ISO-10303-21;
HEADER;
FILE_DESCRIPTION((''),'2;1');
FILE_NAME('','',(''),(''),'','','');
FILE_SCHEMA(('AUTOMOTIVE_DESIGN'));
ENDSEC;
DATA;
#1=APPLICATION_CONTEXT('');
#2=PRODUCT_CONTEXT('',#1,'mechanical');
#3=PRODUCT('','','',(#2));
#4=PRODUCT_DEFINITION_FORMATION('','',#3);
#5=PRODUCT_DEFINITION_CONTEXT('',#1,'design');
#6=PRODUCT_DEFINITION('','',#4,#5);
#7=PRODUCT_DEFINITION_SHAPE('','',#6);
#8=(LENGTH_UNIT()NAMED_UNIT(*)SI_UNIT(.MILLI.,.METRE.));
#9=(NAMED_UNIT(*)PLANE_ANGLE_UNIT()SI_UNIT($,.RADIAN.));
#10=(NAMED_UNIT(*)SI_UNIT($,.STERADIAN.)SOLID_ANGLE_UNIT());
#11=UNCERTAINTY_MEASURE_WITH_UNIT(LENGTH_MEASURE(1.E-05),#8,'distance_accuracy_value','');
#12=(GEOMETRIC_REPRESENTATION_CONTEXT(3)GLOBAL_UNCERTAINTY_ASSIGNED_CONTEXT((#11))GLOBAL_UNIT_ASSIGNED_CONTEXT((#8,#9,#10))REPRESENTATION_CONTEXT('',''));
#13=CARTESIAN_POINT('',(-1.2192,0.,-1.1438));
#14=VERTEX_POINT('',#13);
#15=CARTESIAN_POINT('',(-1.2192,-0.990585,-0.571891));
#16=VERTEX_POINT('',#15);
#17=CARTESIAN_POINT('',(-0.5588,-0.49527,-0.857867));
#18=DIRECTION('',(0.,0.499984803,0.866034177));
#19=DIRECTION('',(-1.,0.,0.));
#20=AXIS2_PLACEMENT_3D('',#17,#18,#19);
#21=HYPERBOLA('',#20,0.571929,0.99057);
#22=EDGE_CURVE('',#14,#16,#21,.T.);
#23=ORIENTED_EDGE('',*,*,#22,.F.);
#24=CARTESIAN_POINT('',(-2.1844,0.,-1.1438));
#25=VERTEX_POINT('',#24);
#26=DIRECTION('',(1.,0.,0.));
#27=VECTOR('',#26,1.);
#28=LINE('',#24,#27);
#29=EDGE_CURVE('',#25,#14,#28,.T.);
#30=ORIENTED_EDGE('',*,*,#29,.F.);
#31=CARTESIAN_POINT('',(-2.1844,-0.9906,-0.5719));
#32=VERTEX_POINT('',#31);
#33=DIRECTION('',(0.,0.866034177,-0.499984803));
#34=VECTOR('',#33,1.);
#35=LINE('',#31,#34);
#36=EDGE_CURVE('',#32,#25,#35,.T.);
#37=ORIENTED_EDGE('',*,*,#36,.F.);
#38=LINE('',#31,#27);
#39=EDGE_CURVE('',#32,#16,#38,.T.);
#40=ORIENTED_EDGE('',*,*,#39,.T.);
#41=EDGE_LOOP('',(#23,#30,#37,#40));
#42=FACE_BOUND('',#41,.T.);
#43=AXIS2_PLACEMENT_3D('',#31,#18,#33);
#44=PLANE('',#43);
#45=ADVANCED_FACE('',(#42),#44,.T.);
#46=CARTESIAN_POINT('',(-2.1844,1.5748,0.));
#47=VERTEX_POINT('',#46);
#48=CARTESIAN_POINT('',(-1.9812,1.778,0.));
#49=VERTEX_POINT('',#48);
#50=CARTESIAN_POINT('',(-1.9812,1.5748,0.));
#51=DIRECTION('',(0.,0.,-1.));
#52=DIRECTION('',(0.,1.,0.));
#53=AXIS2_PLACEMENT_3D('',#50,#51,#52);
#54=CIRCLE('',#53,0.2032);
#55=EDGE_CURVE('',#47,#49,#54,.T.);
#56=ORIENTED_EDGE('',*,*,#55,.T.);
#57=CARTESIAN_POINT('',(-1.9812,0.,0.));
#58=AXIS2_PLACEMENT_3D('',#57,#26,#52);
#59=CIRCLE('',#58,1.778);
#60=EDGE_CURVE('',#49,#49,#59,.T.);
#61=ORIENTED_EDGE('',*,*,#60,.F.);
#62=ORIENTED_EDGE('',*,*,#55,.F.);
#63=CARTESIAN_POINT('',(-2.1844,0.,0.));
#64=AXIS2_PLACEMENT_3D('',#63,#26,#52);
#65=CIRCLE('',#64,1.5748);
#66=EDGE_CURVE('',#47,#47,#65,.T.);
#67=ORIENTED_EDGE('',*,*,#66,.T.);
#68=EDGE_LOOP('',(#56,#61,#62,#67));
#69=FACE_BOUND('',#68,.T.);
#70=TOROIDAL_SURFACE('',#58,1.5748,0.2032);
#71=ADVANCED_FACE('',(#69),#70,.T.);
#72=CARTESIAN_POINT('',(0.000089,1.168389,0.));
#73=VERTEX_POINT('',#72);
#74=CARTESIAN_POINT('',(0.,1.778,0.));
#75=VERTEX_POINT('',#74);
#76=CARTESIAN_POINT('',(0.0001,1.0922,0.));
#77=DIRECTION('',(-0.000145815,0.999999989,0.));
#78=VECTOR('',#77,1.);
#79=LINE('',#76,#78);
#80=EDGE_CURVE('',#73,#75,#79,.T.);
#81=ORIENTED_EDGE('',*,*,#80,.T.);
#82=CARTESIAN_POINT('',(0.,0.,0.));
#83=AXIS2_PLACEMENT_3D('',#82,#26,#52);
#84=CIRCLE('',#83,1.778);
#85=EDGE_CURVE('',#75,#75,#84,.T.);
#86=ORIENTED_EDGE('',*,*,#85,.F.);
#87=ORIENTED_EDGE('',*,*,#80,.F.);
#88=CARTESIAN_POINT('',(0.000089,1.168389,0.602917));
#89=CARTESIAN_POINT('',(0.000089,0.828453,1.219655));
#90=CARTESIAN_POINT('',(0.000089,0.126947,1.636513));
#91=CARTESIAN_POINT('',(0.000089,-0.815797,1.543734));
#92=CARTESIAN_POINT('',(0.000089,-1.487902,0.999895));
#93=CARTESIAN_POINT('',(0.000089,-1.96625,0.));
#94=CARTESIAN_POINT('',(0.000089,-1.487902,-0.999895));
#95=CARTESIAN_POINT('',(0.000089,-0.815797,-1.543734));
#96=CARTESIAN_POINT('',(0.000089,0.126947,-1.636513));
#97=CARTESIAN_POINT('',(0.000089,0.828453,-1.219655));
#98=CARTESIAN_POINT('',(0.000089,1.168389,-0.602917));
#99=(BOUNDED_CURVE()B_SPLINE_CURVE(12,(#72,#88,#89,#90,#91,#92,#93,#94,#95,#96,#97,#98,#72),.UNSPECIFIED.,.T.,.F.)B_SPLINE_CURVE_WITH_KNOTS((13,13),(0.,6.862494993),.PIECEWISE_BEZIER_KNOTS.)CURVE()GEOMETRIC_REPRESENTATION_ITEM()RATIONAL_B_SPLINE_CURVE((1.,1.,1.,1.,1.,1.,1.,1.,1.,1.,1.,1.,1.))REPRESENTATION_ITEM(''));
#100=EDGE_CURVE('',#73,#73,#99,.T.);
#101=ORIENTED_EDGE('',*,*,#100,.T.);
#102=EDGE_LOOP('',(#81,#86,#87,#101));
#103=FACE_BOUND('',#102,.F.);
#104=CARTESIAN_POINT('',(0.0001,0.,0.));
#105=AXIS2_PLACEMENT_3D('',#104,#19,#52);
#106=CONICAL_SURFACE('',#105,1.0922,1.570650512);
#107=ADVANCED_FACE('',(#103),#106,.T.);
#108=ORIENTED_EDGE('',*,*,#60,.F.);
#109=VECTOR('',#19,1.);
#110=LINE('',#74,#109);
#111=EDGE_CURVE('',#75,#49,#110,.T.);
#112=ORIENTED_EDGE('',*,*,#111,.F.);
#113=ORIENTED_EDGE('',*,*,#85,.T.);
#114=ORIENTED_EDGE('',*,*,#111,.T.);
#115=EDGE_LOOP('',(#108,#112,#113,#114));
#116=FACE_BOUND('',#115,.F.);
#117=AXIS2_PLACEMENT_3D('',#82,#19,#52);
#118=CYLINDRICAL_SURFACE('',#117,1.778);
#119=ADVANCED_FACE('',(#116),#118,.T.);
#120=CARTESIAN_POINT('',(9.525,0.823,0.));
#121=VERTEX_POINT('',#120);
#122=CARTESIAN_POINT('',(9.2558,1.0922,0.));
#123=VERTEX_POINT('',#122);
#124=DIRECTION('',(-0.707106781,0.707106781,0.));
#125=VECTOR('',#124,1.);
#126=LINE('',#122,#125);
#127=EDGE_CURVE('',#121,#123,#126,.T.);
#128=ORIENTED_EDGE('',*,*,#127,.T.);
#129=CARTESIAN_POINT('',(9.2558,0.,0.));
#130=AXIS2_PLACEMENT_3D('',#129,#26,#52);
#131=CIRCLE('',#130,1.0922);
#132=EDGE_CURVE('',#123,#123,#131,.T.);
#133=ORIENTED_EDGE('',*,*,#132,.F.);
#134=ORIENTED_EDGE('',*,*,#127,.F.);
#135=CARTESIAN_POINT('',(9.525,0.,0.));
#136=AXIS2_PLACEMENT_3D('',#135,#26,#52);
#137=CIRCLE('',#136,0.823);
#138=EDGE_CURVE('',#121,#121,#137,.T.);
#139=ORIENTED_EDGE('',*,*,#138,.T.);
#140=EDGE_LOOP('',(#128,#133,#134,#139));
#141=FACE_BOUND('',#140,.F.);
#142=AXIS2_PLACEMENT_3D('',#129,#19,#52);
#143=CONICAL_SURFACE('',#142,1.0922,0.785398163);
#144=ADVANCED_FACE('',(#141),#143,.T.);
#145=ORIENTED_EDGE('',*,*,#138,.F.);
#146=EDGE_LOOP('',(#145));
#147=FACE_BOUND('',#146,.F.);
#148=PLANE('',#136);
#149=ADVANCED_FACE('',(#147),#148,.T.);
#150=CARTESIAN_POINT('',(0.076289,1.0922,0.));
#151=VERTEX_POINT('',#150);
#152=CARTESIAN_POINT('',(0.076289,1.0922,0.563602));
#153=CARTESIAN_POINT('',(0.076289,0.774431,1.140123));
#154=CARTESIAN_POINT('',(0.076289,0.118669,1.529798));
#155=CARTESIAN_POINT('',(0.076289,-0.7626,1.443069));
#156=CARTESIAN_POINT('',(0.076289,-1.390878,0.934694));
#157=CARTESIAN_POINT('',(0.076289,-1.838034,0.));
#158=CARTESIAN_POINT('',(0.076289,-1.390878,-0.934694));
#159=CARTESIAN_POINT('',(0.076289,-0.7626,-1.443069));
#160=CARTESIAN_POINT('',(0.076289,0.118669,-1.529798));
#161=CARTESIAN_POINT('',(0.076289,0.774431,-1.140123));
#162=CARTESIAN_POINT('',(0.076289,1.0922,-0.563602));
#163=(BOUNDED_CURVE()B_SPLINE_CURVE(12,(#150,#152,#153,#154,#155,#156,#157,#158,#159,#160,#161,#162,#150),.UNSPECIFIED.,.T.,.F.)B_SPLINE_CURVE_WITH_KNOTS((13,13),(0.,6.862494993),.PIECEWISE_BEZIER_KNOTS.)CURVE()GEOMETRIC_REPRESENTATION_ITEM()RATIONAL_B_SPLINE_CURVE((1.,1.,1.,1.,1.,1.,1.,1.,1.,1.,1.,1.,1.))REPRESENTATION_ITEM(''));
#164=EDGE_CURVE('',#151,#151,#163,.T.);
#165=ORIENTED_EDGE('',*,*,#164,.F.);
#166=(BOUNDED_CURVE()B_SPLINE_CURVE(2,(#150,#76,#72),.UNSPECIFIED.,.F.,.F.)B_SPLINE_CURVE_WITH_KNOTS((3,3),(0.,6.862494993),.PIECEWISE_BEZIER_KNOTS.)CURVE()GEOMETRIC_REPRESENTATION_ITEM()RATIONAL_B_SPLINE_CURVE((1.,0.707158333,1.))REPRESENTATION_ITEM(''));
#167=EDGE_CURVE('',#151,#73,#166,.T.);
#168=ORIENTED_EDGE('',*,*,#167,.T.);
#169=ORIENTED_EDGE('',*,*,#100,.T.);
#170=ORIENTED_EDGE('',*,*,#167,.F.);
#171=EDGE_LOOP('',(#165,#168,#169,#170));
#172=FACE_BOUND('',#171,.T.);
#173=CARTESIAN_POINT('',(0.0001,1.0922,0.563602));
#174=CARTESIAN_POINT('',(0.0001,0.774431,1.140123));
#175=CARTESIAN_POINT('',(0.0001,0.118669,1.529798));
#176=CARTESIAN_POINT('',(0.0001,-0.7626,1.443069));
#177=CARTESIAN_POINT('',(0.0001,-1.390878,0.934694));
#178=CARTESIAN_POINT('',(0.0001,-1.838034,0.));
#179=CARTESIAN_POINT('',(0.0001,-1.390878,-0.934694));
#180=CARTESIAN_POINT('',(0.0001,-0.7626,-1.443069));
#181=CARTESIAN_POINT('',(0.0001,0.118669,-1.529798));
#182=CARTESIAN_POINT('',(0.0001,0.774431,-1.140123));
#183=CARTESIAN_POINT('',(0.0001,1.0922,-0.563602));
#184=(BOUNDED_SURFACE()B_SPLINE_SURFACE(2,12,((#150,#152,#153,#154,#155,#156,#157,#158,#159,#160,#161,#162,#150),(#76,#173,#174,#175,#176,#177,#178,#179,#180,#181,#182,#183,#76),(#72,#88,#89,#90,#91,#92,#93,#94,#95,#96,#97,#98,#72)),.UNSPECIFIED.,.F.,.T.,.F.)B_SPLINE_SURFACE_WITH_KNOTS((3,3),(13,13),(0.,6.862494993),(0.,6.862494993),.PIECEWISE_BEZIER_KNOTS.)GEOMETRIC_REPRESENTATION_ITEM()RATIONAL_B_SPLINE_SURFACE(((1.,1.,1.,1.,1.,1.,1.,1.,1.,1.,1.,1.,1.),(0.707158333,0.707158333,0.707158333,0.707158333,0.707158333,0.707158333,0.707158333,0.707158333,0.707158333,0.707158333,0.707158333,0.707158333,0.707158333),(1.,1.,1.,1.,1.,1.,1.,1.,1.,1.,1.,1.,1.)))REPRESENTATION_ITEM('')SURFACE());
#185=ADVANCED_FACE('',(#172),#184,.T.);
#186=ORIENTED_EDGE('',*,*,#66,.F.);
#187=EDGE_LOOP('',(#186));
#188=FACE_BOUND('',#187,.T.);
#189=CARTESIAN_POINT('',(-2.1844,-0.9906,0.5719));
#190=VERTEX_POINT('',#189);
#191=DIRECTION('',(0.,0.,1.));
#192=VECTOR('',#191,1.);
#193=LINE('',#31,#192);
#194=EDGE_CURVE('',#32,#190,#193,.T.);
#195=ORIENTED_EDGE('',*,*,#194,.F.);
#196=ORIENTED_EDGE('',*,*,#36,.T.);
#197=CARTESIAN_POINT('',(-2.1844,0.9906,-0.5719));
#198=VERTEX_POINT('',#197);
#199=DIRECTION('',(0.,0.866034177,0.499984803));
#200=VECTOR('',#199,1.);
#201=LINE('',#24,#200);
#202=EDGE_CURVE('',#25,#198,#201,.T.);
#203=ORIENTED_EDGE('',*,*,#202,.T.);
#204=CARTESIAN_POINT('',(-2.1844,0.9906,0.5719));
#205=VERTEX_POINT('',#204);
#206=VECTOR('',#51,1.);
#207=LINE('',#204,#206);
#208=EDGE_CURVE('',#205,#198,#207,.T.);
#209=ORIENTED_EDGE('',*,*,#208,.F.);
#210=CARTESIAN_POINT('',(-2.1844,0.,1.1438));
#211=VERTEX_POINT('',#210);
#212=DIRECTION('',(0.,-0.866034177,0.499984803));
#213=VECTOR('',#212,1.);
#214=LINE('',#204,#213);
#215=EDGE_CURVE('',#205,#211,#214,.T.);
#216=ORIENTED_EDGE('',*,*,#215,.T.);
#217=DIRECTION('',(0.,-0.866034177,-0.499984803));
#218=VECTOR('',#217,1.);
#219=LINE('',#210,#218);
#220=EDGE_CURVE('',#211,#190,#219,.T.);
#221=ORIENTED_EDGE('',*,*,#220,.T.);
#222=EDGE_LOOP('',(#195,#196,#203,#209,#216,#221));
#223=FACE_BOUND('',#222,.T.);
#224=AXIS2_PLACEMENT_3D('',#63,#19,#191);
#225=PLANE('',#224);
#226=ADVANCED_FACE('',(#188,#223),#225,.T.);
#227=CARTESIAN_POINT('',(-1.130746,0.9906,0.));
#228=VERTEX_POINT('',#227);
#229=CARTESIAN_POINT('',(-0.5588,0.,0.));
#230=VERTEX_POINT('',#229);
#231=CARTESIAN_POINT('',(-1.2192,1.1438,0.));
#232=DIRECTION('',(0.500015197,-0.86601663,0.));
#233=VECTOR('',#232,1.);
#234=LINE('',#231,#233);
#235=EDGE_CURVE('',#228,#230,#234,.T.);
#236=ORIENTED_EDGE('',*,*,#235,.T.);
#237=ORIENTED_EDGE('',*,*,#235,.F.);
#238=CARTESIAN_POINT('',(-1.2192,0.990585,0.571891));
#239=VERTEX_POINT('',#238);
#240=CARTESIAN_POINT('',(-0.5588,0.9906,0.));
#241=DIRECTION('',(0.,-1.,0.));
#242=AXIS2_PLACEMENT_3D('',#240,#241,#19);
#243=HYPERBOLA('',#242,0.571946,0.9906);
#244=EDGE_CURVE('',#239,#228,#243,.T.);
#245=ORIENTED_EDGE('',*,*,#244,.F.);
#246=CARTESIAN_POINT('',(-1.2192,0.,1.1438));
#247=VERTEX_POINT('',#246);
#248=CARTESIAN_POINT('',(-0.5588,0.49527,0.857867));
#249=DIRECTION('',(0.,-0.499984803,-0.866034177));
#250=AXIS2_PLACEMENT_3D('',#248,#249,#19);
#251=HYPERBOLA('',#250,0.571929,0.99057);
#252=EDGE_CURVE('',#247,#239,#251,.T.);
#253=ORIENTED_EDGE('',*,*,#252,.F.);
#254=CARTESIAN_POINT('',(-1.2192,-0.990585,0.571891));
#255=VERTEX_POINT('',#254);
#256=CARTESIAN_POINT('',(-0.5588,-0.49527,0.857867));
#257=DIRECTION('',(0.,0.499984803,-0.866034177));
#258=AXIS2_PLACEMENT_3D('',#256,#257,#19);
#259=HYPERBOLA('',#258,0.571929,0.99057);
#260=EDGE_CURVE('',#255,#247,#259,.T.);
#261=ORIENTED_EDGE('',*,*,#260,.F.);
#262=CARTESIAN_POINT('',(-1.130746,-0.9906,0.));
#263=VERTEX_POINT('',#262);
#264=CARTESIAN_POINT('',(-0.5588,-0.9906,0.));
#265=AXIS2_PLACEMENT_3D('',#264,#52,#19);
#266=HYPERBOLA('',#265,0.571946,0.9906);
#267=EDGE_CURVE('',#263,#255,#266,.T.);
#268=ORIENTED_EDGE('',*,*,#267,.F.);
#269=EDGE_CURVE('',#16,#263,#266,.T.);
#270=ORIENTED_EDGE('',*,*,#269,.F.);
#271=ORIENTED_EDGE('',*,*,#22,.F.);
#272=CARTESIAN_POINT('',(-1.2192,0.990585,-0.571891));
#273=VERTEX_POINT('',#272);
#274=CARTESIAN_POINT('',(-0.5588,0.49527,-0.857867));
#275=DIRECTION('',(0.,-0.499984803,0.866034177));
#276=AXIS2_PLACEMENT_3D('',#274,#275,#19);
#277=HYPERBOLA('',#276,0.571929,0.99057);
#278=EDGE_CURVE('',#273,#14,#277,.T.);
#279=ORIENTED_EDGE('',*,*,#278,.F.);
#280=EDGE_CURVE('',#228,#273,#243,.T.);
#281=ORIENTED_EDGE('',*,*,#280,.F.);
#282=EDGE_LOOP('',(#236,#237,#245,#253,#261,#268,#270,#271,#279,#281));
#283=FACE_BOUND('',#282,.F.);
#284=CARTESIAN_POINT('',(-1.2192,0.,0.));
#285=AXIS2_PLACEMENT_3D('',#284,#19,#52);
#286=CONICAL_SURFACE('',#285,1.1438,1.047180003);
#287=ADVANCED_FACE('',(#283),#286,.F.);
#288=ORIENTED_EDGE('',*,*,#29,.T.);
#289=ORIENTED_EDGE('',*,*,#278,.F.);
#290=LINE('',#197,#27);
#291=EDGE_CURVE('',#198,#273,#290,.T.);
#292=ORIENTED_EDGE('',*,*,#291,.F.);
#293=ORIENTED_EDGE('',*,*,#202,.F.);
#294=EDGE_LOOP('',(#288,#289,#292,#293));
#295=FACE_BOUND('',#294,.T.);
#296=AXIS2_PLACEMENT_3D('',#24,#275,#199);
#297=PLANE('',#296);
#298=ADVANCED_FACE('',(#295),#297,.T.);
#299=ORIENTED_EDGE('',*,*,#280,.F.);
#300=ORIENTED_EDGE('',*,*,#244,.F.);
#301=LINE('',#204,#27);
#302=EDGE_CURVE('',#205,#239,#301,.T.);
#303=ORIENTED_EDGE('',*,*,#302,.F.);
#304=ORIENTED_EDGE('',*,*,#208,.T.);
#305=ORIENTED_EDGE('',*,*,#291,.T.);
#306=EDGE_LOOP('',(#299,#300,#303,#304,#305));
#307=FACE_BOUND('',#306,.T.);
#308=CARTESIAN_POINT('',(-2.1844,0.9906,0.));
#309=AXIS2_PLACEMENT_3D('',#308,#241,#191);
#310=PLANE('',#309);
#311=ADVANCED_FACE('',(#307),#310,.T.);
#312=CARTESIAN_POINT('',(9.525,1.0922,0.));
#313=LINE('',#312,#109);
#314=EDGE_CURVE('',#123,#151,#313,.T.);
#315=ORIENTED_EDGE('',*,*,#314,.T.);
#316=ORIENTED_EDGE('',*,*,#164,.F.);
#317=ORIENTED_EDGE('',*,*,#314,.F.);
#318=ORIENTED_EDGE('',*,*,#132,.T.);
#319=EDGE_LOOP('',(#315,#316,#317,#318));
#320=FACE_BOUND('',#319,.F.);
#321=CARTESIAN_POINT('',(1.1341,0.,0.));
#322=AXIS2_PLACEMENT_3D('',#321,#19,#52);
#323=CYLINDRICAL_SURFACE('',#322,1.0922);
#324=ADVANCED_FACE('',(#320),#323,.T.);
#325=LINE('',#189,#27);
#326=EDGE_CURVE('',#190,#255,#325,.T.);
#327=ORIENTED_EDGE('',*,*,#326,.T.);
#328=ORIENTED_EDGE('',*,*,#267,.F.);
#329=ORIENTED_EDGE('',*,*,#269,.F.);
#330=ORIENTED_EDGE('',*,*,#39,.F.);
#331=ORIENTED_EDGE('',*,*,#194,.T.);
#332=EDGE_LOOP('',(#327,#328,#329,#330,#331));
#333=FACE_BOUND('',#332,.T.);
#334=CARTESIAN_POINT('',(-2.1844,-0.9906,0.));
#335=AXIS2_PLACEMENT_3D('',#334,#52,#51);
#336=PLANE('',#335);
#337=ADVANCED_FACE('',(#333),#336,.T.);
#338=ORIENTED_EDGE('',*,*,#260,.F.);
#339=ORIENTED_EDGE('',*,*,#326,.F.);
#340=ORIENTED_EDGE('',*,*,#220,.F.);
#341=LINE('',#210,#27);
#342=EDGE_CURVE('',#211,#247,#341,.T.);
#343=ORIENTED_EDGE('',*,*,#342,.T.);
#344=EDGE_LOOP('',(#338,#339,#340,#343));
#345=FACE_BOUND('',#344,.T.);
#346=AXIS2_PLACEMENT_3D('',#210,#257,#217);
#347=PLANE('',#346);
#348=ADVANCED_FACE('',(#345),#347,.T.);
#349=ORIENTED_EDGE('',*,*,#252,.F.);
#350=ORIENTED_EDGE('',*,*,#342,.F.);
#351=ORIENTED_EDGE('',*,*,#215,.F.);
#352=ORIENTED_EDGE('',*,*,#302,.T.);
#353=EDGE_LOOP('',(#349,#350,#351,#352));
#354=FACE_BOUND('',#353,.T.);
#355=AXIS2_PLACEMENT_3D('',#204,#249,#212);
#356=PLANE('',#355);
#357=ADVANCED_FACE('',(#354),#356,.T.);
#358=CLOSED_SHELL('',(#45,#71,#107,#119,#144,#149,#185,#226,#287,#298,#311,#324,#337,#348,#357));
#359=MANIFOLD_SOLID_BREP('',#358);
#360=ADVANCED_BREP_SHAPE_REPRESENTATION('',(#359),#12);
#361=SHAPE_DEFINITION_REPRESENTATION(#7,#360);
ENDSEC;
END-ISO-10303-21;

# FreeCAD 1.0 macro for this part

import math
import FreeCAD as App
import Part
import Sketcher

V = App.Vector
Q = App.Units.Quantity


def edges_at(feature, points):
    """Names of the edges that pass closest to the given points."""
    edges = feature.Shape.Edges
    near = lambda p: min(range(len(edges)), key=lambda i: edges[i].distToShape(Part.Vertex(*p))[0])
    return sorted({f"Edge{near(p) + 1}" for p in points})

doc = App.newDocument("Part")
body = doc.addObject("PartDesign::Body", "Body")

sketch1 = body.newObject("Sketcher::SketchObject", "Sketch")
sketch1.AttachmentSupport = (doc.getObject("XY_Plane"), [""])
sketch1.MapMode = "FlatFace"
sketch1.addGeometry([
    Part.LineSegment(V(-1.2, 1.1, 0), V(-0.6, 0, 0)),
    Part.LineSegment(V(-0.6, 0, 0), V(9.5, 0, 0)),
    Part.LineSegment(V(9.5, 0, 0), V(9.5, 1.1, 0)),
    Part.LineSegment(V(9.5, 1.1, 0), V(0, 1.1, 0)),
    Part.LineSegment(V(0, 1.1, 0), V(0, 1.8, 0)),
    Part.LineSegment(V(0, 1.8, 0), V(-2.2, 1.8, 0)),
    Part.LineSegment(V(-2.2, 1.8, 0), V(-2.2, 1.1, 0)),
    Part.LineSegment(V(-2.2, 1.1, 0), V(-1.2, 1.1, 0)),
], False)
sketch1.addConstraint([
    Sketcher.Constraint("Coincident", 0, 2, 1, 1),
    Sketcher.Constraint("Coincident", 1, 2, 2, 1),
    Sketcher.Constraint("Coincident", 2, 2, 3, 1),
    Sketcher.Constraint("Coincident", 3, 2, 4, 1),
    Sketcher.Constraint("Coincident", 4, 2, 5, 1),
    Sketcher.Constraint("Coincident", 5, 2, 6, 1),
    Sketcher.Constraint("Coincident", 6, 2, 7, 1),
    Sketcher.Constraint("Coincident", 7, 2, 0, 1),
    Sketcher.Constraint("Horizontal", 1),
    Sketcher.Constraint("Vertical", 2),
    Sketcher.Constraint("Horizontal", 3),
    Sketcher.Constraint("Vertical", 4),
    Sketcher.Constraint("Horizontal", 5),
    Sketcher.Constraint("Vertical", 6),
    Sketcher.Constraint("Horizontal", 7),
    Sketcher.Constraint("PointOnObject", 0, 2, -1),
    Sketcher.Constraint("PointOnObject", 3, 2, -2),
    Sketcher.Constraint("DistanceX", 3, 2, 3, 1, Q("0.375 in")),
    Sketcher.Constraint("DistanceX", 5, 2, 5, 1, Q("0.086 in")),
    Sketcher.Constraint("DistanceX", 7, 1, 7, 2, Q("0.038 in")),
    Sketcher.Constraint("Angle", 0, Q("-59.999 deg")),
    Sketcher.Constraint("DistanceX", 1, 1, 1, 2, Q("0.397 in")),
    Sketcher.Constraint("DistanceY", 2, 1, 2, 2, Q("0.043 in")),
    Sketcher.Constraint("DistanceY", 4, 1, 4, 2, Q("0.027 in")),
])
revolution = body.newObject("PartDesign::Revolution", "Revolution")
revolution.Profile = sketch1
revolution.ReferenceAxis = (sketch1, ["H_Axis"])
revolution.Angle = 360

sketch2 = body.newObject("Sketcher::SketchObject", "Sketch001")
sketch2.AttachmentSupport = (doc.getObject("YZ_Plane"), [""])
sketch2.MapMode = "FlatFace"
sketch2.AttachmentOffset = App.Placement(V(0, 0, -0.086 * 25.4), App.Rotation())
sketch2.addGeometry([
    Part.LineSegment(V(1, 0.6, 0), V(0, 1.1, 0)),
    Part.ArcOfCircle(Part.Circle(V(0, 0, 0), V(0, 0, 1), 1.1), math.radians(30), math.radians(90)),
    Part.ArcOfCircle(Part.Circle(V(0, 0, 0), V(0, 0, 1), 1.1), math.radians(90), math.radians(150)),
    Part.LineSegment(V(0, 1.1, 0), V(-1, 0.6, 0)),
    Part.ArcOfCircle(Part.Circle(V(0, 0, 0), V(0, 0, 1), 1.1), math.radians(-30), math.radians(30)),
    Part.LineSegment(V(1, 0.6, 0), V(1, -0.6, 0)),
    Part.LineSegment(V(-1, 0.6, 0), V(-1, -0.6, 0)),
    Part.ArcOfCircle(Part.Circle(V(0, 0, 0), V(0, 0, 1), 1.1), math.radians(150), math.radians(210)),
    Part.LineSegment(V(-1, -0.6, 0), V(0, -1.1, 0)),
    Part.ArcOfCircle(Part.Circle(V(0, 0, 0), V(0, 0, 1), 1.1), math.radians(-150), math.radians(-90)),
    Part.ArcOfCircle(Part.Circle(V(0, 0, 0), V(0, 0, 1), 1.1), math.radians(-90), math.radians(-30)),
    Part.LineSegment(V(0, -1.1, 0), V(1, -0.6, 0)),
], False)
sketch2.addConstraint([
    Sketcher.Constraint("Coincident", 0, 1, 1, 1),
    Sketcher.Constraint("Coincident", 1, 2, 0, 2),
    Sketcher.Constraint("Coincident", 2, 1, 3, 1),
    Sketcher.Constraint("Coincident", 3, 2, 2, 2),
    Sketcher.Constraint("Coincident", 4, 1, 5, 2),
    Sketcher.Constraint("Coincident", 5, 1, 4, 2),
    Sketcher.Constraint("Coincident", 6, 1, 7, 1),
    Sketcher.Constraint("Coincident", 7, 2, 6, 2),
    Sketcher.Constraint("Coincident", 8, 1, 9, 1),
    Sketcher.Constraint("Coincident", 9, 2, 8, 2),
    Sketcher.Constraint("Coincident", 10, 1, 11, 1),
    Sketcher.Constraint("Coincident", 11, 2, 10, 2),
    Sketcher.Constraint("Vertical", 5),
    Sketcher.Constraint("Vertical", 6),
    Sketcher.Constraint("Coincident", 1, 3, -1, 1),
    Sketcher.Constraint("Coincident", 2, 3, -1, 1),
    Sketcher.Constraint("Coincident", 4, 3, -1, 1),
    Sketcher.Constraint("Coincident", 7, 3, -1, 1),
    Sketcher.Constraint("Coincident", 9, 3, -1, 1),
    Sketcher.Constraint("Coincident", 10, 3, -1, 1),
    Sketcher.Constraint("Coincident", 2, 1, 1, 2),
    Sketcher.Constraint("Coincident", 5, 1, 0, 1),
    Sketcher.Constraint("Coincident", 6, 1, 3, 2),
    Sketcher.Constraint("Coincident", 8, 1, 7, 2),
    Sketcher.Constraint("Coincident", 10, 1, 9, 2),
    Sketcher.Constraint("PointOnObject", 1, 2, -2),
    Sketcher.Constraint("PointOnObject", 9, 2, -2),
    Sketcher.Constraint("Parallel", 0, 8),
    Sketcher.Constraint("Parallel", 3, 11),
    Sketcher.Constraint("Angle", 0, Q("150.001 deg")),
    Sketcher.Constraint("Radius", 1, Q("1.1438 mm")),
])
pad1 = body.newObject("PartDesign::Pad", "Pad")
pad1.Profile = sketch2
pad1.Type = "UpToFirst"
doc.recompute()

fillet = body.newObject("PartDesign::Fillet", "Fillet")
fillet.Base = (pad1, edges_at(pad1, [(-2.184, -1.778, 0)]))
fillet.Radius = Q("0.008 in")
doc.recompute()

chamfer = body.newObject("PartDesign::Chamfer", "Chamfer")
chamfer.Base = (fillet, edges_at(fillet, [(9.525, -1.092, 0)]))
chamfer.ChamferType = "Two distances"
chamfer.Size = Q("0.0105984 in")
chamfer.Size2 = Q("0.0105984 in")
doc.recompute()

fillet2 = body.newObject("PartDesign::Fillet", "Fillet001")
fillet2.Base = (chamfer, edges_at(chamfer, [(0, -1.092, 0)]))
fillet2.Radius = Q("0.003 in")

doc.recompute()
